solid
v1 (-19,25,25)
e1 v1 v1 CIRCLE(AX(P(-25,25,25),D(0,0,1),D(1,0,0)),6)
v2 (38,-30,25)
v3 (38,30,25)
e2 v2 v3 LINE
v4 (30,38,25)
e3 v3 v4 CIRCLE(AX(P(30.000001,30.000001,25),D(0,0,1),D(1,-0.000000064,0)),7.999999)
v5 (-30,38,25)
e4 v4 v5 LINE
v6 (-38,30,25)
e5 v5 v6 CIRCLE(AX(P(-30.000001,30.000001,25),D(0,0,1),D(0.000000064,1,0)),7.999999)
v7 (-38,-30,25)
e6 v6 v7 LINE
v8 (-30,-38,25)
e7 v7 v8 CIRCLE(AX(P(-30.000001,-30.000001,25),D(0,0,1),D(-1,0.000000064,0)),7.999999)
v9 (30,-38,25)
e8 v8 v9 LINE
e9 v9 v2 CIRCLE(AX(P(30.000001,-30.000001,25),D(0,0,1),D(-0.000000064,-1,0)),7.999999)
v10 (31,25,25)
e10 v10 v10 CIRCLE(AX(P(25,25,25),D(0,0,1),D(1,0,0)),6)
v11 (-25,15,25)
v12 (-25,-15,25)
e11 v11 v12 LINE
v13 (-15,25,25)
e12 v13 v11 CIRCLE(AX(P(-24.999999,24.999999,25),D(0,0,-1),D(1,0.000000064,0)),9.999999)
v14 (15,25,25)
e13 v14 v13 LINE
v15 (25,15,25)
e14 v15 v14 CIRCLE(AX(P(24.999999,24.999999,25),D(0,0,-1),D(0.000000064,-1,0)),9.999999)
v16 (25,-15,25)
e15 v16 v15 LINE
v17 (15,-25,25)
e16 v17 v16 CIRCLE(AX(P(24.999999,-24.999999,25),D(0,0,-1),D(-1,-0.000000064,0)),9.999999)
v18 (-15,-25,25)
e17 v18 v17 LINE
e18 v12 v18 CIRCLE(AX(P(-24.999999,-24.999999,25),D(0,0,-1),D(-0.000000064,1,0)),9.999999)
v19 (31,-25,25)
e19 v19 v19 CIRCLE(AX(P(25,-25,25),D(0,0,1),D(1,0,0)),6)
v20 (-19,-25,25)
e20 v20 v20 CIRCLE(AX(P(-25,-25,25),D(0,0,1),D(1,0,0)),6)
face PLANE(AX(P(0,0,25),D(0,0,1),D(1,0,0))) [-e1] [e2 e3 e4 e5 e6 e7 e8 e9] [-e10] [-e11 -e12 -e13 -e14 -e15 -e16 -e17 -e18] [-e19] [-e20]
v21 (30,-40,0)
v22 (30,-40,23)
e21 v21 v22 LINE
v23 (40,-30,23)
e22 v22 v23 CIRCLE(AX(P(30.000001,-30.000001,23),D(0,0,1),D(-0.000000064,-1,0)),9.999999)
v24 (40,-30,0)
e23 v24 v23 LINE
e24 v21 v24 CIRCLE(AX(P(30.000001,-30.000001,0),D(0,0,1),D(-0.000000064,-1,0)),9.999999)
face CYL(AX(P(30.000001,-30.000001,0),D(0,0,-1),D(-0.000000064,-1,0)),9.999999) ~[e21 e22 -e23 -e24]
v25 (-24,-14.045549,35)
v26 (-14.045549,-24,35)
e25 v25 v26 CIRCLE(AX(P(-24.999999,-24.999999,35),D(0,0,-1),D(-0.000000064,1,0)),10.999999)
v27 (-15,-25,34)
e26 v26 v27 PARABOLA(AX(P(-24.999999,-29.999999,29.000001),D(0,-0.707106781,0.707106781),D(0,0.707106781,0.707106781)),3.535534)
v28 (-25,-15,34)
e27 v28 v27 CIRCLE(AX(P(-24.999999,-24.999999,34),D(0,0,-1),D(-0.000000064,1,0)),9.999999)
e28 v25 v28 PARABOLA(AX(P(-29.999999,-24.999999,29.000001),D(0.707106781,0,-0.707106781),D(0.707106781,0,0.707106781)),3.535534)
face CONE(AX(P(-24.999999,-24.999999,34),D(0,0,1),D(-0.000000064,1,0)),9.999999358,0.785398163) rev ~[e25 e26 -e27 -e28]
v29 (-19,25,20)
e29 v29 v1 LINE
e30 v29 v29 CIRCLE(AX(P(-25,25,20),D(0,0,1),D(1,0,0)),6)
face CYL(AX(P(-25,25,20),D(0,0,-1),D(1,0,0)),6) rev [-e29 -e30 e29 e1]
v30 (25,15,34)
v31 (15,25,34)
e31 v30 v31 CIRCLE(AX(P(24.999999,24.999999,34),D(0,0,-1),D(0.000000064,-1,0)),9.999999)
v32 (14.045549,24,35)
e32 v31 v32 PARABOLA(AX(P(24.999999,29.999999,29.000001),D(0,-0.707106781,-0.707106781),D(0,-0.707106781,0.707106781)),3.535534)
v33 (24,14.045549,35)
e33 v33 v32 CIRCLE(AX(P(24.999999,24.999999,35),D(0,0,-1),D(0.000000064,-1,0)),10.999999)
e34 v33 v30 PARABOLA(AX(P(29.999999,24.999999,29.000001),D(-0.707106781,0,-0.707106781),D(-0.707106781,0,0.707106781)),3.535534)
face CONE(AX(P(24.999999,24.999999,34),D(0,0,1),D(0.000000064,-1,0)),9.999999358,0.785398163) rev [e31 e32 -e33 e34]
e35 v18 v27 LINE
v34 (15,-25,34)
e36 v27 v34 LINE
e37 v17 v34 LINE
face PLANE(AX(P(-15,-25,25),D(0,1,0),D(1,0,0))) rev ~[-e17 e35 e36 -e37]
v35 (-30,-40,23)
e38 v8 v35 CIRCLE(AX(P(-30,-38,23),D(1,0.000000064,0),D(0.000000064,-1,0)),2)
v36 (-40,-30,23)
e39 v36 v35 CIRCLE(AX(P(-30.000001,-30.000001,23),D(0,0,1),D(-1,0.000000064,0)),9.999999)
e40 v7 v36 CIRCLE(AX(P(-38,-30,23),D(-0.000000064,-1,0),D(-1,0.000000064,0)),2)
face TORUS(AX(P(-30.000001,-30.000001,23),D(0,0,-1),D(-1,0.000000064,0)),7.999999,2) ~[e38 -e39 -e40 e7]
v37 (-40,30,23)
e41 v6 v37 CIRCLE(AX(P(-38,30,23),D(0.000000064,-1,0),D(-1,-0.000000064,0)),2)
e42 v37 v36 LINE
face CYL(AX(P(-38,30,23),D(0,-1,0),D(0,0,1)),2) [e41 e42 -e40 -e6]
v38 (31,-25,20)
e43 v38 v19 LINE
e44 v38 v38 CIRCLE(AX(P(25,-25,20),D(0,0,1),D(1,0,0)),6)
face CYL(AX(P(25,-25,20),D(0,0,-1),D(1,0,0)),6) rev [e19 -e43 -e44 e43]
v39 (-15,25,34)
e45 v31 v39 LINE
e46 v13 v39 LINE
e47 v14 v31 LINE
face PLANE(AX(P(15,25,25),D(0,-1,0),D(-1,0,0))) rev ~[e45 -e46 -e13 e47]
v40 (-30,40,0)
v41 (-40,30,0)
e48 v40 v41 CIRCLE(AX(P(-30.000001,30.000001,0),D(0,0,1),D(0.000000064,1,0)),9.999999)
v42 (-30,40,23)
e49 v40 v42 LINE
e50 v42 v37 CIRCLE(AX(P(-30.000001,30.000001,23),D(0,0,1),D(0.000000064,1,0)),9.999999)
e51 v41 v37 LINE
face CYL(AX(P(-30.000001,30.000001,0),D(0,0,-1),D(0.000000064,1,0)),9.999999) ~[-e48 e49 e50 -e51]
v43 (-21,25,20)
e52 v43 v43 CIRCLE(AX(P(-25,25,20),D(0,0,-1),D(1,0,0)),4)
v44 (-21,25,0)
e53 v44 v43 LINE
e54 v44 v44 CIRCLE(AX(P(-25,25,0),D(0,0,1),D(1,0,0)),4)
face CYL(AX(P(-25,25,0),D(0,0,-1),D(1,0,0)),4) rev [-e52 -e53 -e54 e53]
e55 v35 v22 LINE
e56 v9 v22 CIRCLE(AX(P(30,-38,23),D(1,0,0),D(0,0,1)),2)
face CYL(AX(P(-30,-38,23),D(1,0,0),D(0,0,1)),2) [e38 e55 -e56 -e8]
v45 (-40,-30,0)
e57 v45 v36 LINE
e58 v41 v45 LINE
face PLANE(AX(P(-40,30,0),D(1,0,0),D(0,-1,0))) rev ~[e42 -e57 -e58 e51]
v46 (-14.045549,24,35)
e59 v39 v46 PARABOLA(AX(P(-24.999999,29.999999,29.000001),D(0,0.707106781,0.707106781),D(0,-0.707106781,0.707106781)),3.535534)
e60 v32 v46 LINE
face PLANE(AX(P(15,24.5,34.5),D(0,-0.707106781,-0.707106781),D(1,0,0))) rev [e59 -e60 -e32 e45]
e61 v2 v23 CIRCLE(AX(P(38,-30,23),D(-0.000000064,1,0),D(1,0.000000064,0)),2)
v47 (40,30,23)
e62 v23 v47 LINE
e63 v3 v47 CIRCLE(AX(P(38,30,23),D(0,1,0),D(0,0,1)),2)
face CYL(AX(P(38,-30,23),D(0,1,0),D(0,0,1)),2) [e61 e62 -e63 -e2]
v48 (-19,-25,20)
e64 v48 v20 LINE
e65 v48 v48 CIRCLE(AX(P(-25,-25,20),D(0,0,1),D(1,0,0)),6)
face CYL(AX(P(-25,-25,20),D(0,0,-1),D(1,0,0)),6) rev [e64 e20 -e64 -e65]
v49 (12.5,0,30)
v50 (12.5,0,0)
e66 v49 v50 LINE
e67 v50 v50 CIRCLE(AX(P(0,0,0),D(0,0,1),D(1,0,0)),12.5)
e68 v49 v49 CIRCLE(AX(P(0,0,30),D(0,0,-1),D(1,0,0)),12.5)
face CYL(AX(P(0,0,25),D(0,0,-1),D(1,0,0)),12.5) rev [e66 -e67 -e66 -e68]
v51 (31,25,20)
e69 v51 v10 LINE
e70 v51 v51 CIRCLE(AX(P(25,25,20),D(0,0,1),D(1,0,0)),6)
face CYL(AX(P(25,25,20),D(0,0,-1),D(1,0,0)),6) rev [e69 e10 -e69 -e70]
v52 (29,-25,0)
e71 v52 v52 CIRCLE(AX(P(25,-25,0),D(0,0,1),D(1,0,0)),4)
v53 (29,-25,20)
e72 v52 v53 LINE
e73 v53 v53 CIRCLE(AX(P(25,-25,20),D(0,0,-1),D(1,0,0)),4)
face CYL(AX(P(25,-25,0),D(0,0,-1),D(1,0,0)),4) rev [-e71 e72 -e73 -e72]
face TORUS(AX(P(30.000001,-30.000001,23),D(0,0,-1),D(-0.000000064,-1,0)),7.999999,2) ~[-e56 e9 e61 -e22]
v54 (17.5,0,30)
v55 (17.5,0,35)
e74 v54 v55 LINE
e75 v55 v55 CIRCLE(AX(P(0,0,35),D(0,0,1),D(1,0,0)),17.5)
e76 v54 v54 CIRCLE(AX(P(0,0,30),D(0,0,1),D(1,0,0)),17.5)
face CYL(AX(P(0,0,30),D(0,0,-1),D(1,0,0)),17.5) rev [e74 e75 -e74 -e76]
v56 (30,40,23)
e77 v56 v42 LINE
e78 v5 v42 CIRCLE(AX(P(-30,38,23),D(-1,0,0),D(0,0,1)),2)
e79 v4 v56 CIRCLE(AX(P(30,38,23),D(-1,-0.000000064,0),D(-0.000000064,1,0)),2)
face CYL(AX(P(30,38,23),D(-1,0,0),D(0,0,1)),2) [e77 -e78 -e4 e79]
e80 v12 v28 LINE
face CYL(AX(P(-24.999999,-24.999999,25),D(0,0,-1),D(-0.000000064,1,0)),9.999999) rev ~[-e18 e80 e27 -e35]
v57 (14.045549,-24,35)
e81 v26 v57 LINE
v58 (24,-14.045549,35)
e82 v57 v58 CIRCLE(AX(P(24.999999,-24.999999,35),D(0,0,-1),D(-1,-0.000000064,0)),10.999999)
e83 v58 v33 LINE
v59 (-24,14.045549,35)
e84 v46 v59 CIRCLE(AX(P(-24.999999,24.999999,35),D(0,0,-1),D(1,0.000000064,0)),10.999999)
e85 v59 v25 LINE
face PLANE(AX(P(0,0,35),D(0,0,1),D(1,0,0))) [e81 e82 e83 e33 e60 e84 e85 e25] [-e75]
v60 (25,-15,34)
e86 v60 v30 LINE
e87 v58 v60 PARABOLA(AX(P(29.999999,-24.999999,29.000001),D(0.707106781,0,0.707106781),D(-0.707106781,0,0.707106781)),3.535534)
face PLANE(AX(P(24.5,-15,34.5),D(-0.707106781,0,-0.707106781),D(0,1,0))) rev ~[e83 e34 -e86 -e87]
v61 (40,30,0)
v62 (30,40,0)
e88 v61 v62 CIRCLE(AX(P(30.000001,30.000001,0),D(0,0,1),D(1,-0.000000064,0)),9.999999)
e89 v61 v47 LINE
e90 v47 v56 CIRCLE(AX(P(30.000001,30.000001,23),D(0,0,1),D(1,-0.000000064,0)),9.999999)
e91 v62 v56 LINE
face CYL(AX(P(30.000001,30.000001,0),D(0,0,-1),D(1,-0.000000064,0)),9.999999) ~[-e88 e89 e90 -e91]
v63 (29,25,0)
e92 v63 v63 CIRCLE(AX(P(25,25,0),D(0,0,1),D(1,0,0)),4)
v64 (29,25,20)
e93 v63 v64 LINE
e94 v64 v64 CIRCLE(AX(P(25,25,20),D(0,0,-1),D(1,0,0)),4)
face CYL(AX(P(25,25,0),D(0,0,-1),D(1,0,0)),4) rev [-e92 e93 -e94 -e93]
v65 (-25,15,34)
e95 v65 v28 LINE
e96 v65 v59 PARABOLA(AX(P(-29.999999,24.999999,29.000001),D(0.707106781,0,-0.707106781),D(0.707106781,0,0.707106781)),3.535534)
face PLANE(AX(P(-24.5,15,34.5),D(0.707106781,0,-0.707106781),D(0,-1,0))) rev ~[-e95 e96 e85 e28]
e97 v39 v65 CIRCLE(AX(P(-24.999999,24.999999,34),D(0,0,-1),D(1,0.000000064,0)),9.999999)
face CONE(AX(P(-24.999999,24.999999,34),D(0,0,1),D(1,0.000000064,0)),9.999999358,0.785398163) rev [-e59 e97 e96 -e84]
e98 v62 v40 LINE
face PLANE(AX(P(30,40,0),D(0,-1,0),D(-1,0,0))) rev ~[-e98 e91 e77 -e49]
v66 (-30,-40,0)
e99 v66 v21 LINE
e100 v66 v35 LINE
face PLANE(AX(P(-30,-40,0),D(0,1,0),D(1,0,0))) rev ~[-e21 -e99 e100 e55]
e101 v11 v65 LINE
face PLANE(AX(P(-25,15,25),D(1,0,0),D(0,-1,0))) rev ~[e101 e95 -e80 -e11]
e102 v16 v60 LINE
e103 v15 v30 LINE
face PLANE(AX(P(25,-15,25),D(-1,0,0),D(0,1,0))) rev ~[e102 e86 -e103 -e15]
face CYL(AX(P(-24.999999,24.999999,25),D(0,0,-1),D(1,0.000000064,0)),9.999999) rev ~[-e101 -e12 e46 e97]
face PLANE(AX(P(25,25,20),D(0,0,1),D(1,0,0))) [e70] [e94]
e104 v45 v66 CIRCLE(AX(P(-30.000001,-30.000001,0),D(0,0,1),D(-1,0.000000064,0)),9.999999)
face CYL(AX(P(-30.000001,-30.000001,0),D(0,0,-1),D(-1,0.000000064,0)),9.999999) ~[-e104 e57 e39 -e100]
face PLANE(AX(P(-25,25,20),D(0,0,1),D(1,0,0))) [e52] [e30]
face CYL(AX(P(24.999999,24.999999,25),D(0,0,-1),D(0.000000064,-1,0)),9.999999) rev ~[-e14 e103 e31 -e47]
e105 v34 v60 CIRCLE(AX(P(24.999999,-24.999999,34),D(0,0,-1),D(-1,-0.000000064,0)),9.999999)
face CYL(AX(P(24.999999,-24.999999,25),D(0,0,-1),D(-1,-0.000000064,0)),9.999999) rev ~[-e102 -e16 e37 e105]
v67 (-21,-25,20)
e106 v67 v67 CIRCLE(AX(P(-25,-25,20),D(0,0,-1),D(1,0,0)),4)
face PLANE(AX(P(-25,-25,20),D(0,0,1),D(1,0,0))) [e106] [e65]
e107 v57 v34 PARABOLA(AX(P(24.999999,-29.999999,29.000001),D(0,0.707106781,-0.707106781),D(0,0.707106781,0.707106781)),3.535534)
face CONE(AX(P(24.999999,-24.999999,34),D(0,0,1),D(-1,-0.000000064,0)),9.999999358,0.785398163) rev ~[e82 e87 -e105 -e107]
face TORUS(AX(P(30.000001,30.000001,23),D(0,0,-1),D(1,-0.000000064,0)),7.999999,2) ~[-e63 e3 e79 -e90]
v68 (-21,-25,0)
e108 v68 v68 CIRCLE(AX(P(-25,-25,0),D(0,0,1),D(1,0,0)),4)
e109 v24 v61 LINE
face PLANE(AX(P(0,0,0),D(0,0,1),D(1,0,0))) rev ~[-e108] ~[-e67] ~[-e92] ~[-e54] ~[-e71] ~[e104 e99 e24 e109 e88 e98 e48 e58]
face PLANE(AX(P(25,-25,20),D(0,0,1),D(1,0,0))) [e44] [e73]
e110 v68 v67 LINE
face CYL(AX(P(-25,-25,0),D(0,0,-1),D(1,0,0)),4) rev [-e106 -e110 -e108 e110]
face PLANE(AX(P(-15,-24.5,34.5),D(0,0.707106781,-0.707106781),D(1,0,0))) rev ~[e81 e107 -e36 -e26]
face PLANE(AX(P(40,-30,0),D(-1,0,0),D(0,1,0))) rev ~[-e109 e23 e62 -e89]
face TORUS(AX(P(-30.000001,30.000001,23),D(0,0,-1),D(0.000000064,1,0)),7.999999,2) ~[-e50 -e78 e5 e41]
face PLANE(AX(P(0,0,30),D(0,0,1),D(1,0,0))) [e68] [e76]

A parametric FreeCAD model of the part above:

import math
import FreeCAD as App
import Part
import Sketcher

V = App.Vector
Q = App.Units.Quantity


def edges_at(feature, points):
    """Names of the edges that pass closest to the given points."""
    edges = feature.Shape.Edges
    near = lambda p: min(range(len(edges)), key=lambda i: edges[i].distToShape(Part.Vertex(*p))[0])
    return sorted({f"Edge{near(p) + 1}" for p in points})

doc = App.newDocument("Part")
body = doc.addObject("PartDesign::Body", "Body")

sketch1 = doc.addObject("Sketcher::SketchObject", "Sketch")
body.addObject(sketch1)
sketch1.AttachmentSupport = (doc.XY_Plane, [""])
sketch1.MapMode = "FlatFace"
sketch1.addGeometry(Part.LineSegment(V(30, 40, 0), V(-30, 40, 0)), False)
sketch1.addGeometry(Part.ArcOfCircle(Part.Circle(V(-30, 30, 0), V(0, 0, 1), 10), math.radians(90), math.radians(180)), False)
sketch1.addGeometry(Part.LineSegment(V(-40, 30, 0), V(-40, -30, 0)), False)
sketch1.addGeometry(Part.ArcOfCircle(Part.Circle(V(-30, -30, 0), V(0, 0, 1), 10), math.radians(180), math.radians(270)), False)
sketch1.addGeometry(Part.LineSegment(V(-30, -40, 0), V(30, -40, 0)), False)
sketch1.addGeometry(Part.ArcOfCircle(Part.Circle(V(30, -30, 0), V(0, 0, 1), 10), math.radians(-90), math.radians(0)), False)
sketch1.addGeometry(Part.LineSegment(V(40, -30, 0), V(40, 30, 0)), False)
sketch1.addGeometry(Part.ArcOfCircle(Part.Circle(V(30, 30, 0), V(0, 0, 1), 10), math.radians(0), math.radians(90)), False)
sketch1.addGeometry(Part.Circle(V(-25, -25, 0), V(0, 0, 1), 4), False)
sketch1.addGeometry(Part.Circle(V(25, -25, 0), V(0, 0, 1), 4), False)
sketch1.addGeometry(Part.Circle(V(-25, 25, 0), V(0, 0, 1), 4), False)
sketch1.addGeometry(Part.Circle(V(0, 0, 0), V(0, 0, 1), 12.5), False)
sketch1.addGeometry(Part.Circle(V(25, 25, 0), V(0, 0, 1), 4), False)
sketch1.addConstraint(Sketcher.Constraint("Tangent", 0, 2, 1, 1))
sketch1.addConstraint(Sketcher.Constraint("Tangent", 1, 2, 2, 1))
sketch1.addConstraint(Sketcher.Constraint("Tangent", 2, 2, 3, 1))
sketch1.addConstraint(Sketcher.Constraint("Tangent", 3, 2, 4, 1))
sketch1.addConstraint(Sketcher.Constraint("Tangent", 4, 2, 5, 1))
sketch1.addConstraint(Sketcher.Constraint("Tangent", 5, 2, 6, 1))
sketch1.addConstraint(Sketcher.Constraint("Tangent", 6, 2, 7, 1))
sketch1.addConstraint(Sketcher.Constraint("Tangent", 7, 2, 0, 1))
sketch1.addConstraint(Sketcher.Constraint("Horizontal", 0))
sketch1.addConstraint(Sketcher.Constraint("Vertical", 2))
sketch1.addConstraint(Sketcher.Constraint("Horizontal", 4))
sketch1.addConstraint(Sketcher.Constraint("Vertical", 6))
sketch1.addConstraint(Sketcher.Constraint("Coincident", 11, 3, -1, 1))
sketch1.addConstraint(Sketcher.Constraint("Equal", 1, 3))
sketch1.addConstraint(Sketcher.Constraint("Equal", 3, 5))
sketch1.addConstraint(Sketcher.Constraint("Equal", 5, 7))
sketch1.addConstraint(Sketcher.Constraint("Equal", 8, 9))
sketch1.addConstraint(Sketcher.Constraint("Equal", 9, 10))
sketch1.addConstraint(Sketcher.Constraint("Equal", 10, 12))
sketch1.addConstraint(Sketcher.Constraint("Symmetric", 1, 3, 5, 3, -1, 1))
sketch1.addConstraint(Sketcher.Constraint("Symmetric", 9, 3, 10, 3, -1, 1))
sketch1.addConstraint(Sketcher.Constraint("Symmetric", 8, 3, 12, 3, -1, 1))
sketch1.addConstraint(Sketcher.Constraint("Symmetric", 8, 3, 9, 3, -2))
sketch1.addConstraint(Sketcher.Constraint("Equal", 4, 2))
sketch1.addConstraint(Sketcher.Constraint("Diameter", 8, Q("8 mm")))
sketch1.addConstraint(Sketcher.Constraint("Diameter", 11, Q("25 mm")))
sketch1.addConstraint(Sketcher.Constraint("Radius", 1, Q("9.999999 mm")))
sketch1.addConstraint(Sketcher.Constraint("DistanceX", 0, 2, 0, 1, Q("60 mm")))
sketch1.addConstraint(Sketcher.Constraint("DistanceX", 8, 3, -1, 1, Q("25 mm")))
sketch1.addConstraint(Sketcher.Constraint("DistanceY", 8, 3, -1, 1, Q("25 mm")))
pad1 = doc.addObject("PartDesign::Pad", "Pad")
body.addObject(pad1)
pad1.Profile = sketch1
pad1.Length = 25

sketch2 = doc.addObject("Sketcher::SketchObject", "Sketch001")
body.addObject(sketch2)
sketch2.AttachmentSupport = (doc.XY_Plane, [""])
sketch2.MapMode = "FlatFace"
sketch2.AttachmentOffset = App.Placement(V(0, 0, 25), App.Rotation())
sketch2.addGeometry(Part.LineSegment(V(15, 25, 0), V(-15, 25, 0)), False)
sketch2.addGeometry(Part.ArcOfCircle(Part.Circle(V(-25, 25, 0), V(0, 0, 1), 10), math.radians(-90), math.radians(0)), False)
sketch2.addGeometry(Part.LineSegment(V(-25, 15, 0), V(-25, -15, 0)), False)
sketch2.addGeometry(Part.ArcOfCircle(Part.Circle(V(-25, -25, 0), V(0, 0, 1), 10), math.radians(0), math.radians(90)), False)
sketch2.addGeometry(Part.LineSegment(V(-15, -25, 0), V(15, -25, 0)), False)
sketch2.addGeometry(Part.ArcOfCircle(Part.Circle(V(25, -25, 0), V(0, 0, 1), 10), math.radians(90), math.radians(180)), False)
sketch2.addGeometry(Part.LineSegment(V(25, -15, 0), V(25, 15, 0)), False)
sketch2.addGeometry(Part.ArcOfCircle(Part.Circle(V(25, 25, 0), V(0, 0, 1), 10), math.radians(180), math.radians(270)), False)
sketch2.addGeometry(Part.Circle(V(0, 0, 0), V(0, 0, 1), 12), False)
sketch2.addConstraint(Sketcher.Constraint("Coincident", 0, 2, 1, 2))
sketch2.addConstraint(Sketcher.Constraint("Coincident", 1, 1, 2, 1))
sketch2.addConstraint(Sketcher.Constraint("Coincident", 2, 2, 3, 2))
sketch2.addConstraint(Sketcher.Constraint("Coincident", 3, 1, 4, 1))
sketch2.addConstraint(Sketcher.Constraint("Coincident", 4, 2, 5, 2))
sketch2.addConstraint(Sketcher.Constraint("Coincident", 5, 1, 6, 1))
sketch2.addConstraint(Sketcher.Constraint("Coincident", 6, 2, 7, 2))
sketch2.addConstraint(Sketcher.Constraint("Coincident", 7, 1, 0, 1))
sketch2.addConstraint(Sketcher.Constraint("Horizontal", 0))
sketch2.addConstraint(Sketcher.Constraint("Vertical", 2))
sketch2.addConstraint(Sketcher.Constraint("Horizontal", 4))
sketch2.addConstraint(Sketcher.Constraint("Vertical", 6))
sketch2.addConstraint(Sketcher.Constraint("Coincident", 8, 3, -1, 1))
sketch2.addConstraint(Sketcher.Constraint("Equal", 1, 3))
sketch2.addConstraint(Sketcher.Constraint("Equal", 3, 5))
sketch2.addConstraint(Sketcher.Constraint("Equal", 5, 7))
sketch2.addConstraint(Sketcher.Constraint("Symmetric", 1, 3, 5, 3, -1, 1))
sketch2.addConstraint(Sketcher.Constraint("Symmetric", 3, 3, 7, 3, -1, 1))
sketch2.addConstraint(Sketcher.Constraint("Symmetric", 3, 3, 5, 3, -2))
sketch2.addConstraint(Sketcher.Constraint("Horizontal", 7, 3, 0, 2))
sketch2.addConstraint(Sketcher.Constraint("Horizontal", 5, 3, 3, 1))
sketch2.addConstraint(Sketcher.Constraint("Vertical", 3, 3, 1, 1))
sketch2.addConstraint(Sketcher.Constraint("Vertical", 7, 3, 5, 1))
sketch2.addConstraint(Sketcher.Constraint("Equal", 4, 2))
sketch2.addConstraint(Sketcher.Constraint("Diameter", 8, Q("25 mm")))
sketch2.addConstraint(Sketcher.Constraint("Radius", 1, Q("9.999999 mm")))
sketch2.addConstraint(Sketcher.Constraint("DistanceX", 0, 2, 0, 1, Q("30 mm")))
pad2 = doc.addObject("PartDesign::Pad", "Pad001")
body.addObject(pad2)
pad2.Profile = sketch2
pad2.Length = 10

sketch3 = doc.addObject("Sketcher::SketchObject", "Sketch002")
body.addObject(sketch3)
sketch3.AttachmentSupport = (doc.XY_Plane, [""])
sketch3.MapMode = "FlatFace"
sketch3.AttachmentOffset = App.Placement(V(0, 0, 30), App.Rotation())
sketch3.addGeometry(Part.Circle(V(0, 0, 0), V(0, 0, 1), 18), False)
sketch3.addConstraint(Sketcher.Constraint("Coincident", 0, 3, -1, 1))
sketch3.addConstraint(Sketcher.Constraint("Diameter", 0, Q("35 mm")))
pocket1 = doc.addObject("PartDesign::Pocket", "Pocket")
body.addObject(pocket1)
pocket1.Profile = sketch3
pocket1.Length = 5
pocket1.Reversed = True

sketch4 = doc.addObject("Sketcher::SketchObject", "Sketch003")
body.addObject(sketch4)
sketch4.AttachmentSupport = (doc.XY_Plane, [""])
sketch4.MapMode = "FlatFace"
sketch4.AttachmentOffset = App.Placement(V(0, 0, 20), App.Rotation())
sketch4.addGeometry(Part.Circle(V(-25, 25, 0), V(0, 0, 1), 6), False)
sketch4.addGeometry(Part.Circle(V(25, 25, 0), V(0, 0, 1), 6), False)
sketch4.addGeometry(Part.Circle(V(25, -25, 0), V(0, 0, 1), 6), False)
sketch4.addGeometry(Part.Circle(V(-25, -25, 0), V(0, 0, 1), 6), False)
sketch4.addConstraint(Sketcher.Constraint("Equal", 0, 1))
sketch4.addConstraint(Sketcher.Constraint("Equal", 1, 2))
sketch4.addConstraint(Sketcher.Constraint("Equal", 2, 3))
sketch4.addConstraint(Sketcher.Constraint("Symmetric", 0, 3, 2, 3, -1, 1))
sketch4.addConstraint(Sketcher.Constraint("Symmetric", 1, 3, 3, 3, -1, 1))
sketch4.addConstraint(Sketcher.Constraint("Symmetric", 0, 3, 1, 3, -2))
sketch4.addConstraint(Sketcher.Constraint("Diameter", 0, Q("12 mm")))
sketch4.addConstraint(Sketcher.Constraint("DistanceX", 0, 3, -1, 1, Q("25 mm")))
sketch4.addConstraint(Sketcher.Constraint("DistanceY", -1, 1, 0, 3, Q("25 mm")))
pocket2 = doc.addObject("PartDesign::Pocket", "Pocket001")
body.addObject(pocket2)
pocket2.Profile = sketch4
pocket2.Length = 5
pocket2.Reversed = True
doc.recompute()

chamfer = doc.addObject("PartDesign::Chamfer", "Chamfer")
body.addObject(chamfer)
chamfer.Base = (pocket2, edges_at(pocket2, [
    (-17.929, 17.929, 35),
    (-25, 0, 35),
    (-17.929, -17.929, 35),
    (0, -25, 35),
    (17.929, -17.929, 35),
    (25, 0, 35),
    (17.929, 17.929, 35),
    (0, 25, 35),
]))
chamfer.Size = 1
doc.recompute()

fillet = doc.addObject("PartDesign::Fillet", "Fillet")
body.addObject(fillet)
fillet.Base = (chamfer, edges_at(chamfer, [(-37.071, -37.071, 25), (-40, 0, 25)]))
fillet.Radius = 2

doc.recompute()
